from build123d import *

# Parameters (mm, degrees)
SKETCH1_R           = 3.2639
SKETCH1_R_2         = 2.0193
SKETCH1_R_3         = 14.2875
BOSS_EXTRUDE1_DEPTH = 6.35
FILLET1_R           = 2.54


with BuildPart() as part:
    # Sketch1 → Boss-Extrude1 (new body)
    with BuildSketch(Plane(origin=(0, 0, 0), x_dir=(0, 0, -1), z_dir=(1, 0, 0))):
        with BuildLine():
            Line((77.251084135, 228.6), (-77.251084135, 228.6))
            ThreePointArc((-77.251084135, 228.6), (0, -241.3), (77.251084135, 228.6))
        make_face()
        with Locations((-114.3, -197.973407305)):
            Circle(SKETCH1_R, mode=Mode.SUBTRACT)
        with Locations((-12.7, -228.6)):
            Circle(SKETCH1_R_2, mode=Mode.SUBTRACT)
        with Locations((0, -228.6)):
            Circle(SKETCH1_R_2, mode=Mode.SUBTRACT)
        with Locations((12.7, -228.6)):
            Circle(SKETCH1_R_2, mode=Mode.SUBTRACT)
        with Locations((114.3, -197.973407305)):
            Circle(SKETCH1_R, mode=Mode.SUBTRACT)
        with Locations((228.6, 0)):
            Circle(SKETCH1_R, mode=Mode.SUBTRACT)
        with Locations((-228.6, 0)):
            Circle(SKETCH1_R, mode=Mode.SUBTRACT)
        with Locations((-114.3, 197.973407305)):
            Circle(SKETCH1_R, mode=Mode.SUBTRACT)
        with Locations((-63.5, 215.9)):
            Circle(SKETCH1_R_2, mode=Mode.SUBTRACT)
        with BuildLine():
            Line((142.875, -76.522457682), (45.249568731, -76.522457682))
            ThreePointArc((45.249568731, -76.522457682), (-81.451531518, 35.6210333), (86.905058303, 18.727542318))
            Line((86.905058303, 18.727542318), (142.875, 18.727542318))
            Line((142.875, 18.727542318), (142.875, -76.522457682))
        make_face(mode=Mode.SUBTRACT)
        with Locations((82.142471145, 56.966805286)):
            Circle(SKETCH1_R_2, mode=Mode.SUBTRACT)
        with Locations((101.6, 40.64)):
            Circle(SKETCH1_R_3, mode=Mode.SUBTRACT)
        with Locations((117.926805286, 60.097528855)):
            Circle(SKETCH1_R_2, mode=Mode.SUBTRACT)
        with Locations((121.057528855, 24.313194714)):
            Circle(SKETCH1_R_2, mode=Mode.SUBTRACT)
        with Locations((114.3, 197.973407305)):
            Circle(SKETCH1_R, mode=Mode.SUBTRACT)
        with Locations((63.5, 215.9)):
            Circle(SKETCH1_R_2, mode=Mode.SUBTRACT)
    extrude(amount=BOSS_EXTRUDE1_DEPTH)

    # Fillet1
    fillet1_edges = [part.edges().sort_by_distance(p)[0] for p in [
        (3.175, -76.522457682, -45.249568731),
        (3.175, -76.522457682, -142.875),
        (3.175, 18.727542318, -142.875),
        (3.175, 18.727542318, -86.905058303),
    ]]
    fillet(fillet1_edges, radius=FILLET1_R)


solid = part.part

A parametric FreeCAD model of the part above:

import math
import FreeCAD as App
import Part
import Sketcher
Q = App.Units.Quantity


def edges_at(feature, points):
    """Names of the edges that pass closest to the given points."""
    edges = feature.Shape.Edges
    near = lambda p: min(range(len(edges)), key=lambda i: edges[i].distToShape(Part.Vertex(*p))[0])
    return sorted({f"Edge{near(p) + 1}" for p in points})

doc = App.newDocument("Part")
body = doc.addObject("PartDesign::Body", "Body")

# Sketch on YZ plane
sketch1 = body.newObject("Sketcher::SketchObject", "Sketch")
sketch1.AttachmentSupport = (doc.getObject("YZ_Plane"), [""])
sketch1.MapMode = "FlatFace"
sketch1.addGeometry([
    Part.LineSegment(App.Vector(228.6, -77.3, 0), App.Vector(228.6, 77.3, 0)),  # 0
    Part.ArcOfCircle(Part.Circle(App.Vector(0, 0, 0), App.Vector(0, 0, 1), 241.3), math.radians(19), math.radians(341)),  # 1
    Part.Circle(App.Vector(-198, 114.3, 0), App.Vector(0, 0, 1), 3.3),  # 2
    Part.Circle(App.Vector(-228.6, 12.7, 0), App.Vector(0, 0, 1), 2),  # 3
    Part.Circle(App.Vector(-228.6, 0, 0), App.Vector(0, 0, 1), 2),  # 4
    Part.Circle(App.Vector(-228.6, -12.7, 0), App.Vector(0, 0, 1), 2),  # 5
    Part.Circle(App.Vector(-198, -114.3, 0), App.Vector(0, 0, 1), 3.3),  # 6
    Part.Circle(App.Vector(0, 228.6, 0), App.Vector(0, 0, 1), 3.3),  # 7
    Part.Circle(App.Vector(198, 114.3, 0), App.Vector(0, 0, 1), 3.3),  # 8
    Part.Circle(App.Vector(215.9, 63.5, 0), App.Vector(0, 0, 1), 2),  # 9
    Part.LineSegment(App.Vector(18.7, -142.9, 0), App.Vector(-76.5, -142.9, 0)),  # 10
    Part.LineSegment(App.Vector(-76.5, -142.9, 0), App.Vector(-76.5, -45.2, 0)),  # 11
    Part.ArcOfCircle(Part.Circle(App.Vector(0, 0, 0), App.Vector(0, 0, 1), 88.9), math.radians(-78), math.radians(211)),  # 12
    Part.LineSegment(App.Vector(18.7, -86.9, 0), App.Vector(18.7, -142.9, 0)),  # 13
    Part.Circle(App.Vector(40.6, -101.6, 0), App.Vector(0, 0, 1), 14.3),  # 14
    Part.Circle(App.Vector(57, -82.1, 0), App.Vector(0, 0, 1), 2),  # 15
    Part.Circle(App.Vector(24.3, -121.1, 0), App.Vector(0, 0, 1), 2),  # 16
    Part.Circle(App.Vector(0, -228.6, 0), App.Vector(0, 0, 1), 3.3),  # 17
    Part.Circle(App.Vector(60.1, -117.9, 0), App.Vector(0, 0, 1), 2),  # 18
    Part.Circle(App.Vector(215.9, -63.5, 0), App.Vector(0, 0, 1), 2),  # 19
    Part.Circle(App.Vector(198, -114.3, 0), App.Vector(0, 0, 1), 3.3),  # 20
], False)
sketch1.addConstraint([
    Sketcher.Constraint("Coincident", 0, 1, 1, 2),
    Sketcher.Constraint("Coincident", 1, 1, 0, 2),
    Sketcher.Constraint("Coincident", 10, 2, 11, 1),
    Sketcher.Constraint("Coincident", 11, 2, 12, 2),
    Sketcher.Constraint("Coincident", 12, 1, 13, 1),
    Sketcher.Constraint("Coincident", 13, 2, 10, 1),
    Sketcher.Constraint("Vertical", 0),
    Sketcher.Constraint("Horizontal", 10),
    Sketcher.Constraint("Vertical", 11),
    Sketcher.Constraint("Vertical", 13),
    Sketcher.Constraint("Coincident", 1, 3, -1, 1),
    Sketcher.Constraint("Coincident", 12, 3, -1, 1),
    Sketcher.Constraint("Equal", 3, 4),
    Sketcher.Constraint("Equal", 4, 5),
    Sketcher.Constraint("Equal", 2, 6),
    Sketcher.Constraint("Equal", 6, 7),
    Sketcher.Constraint("Equal", 7, 8),
    Sketcher.Constraint("Equal", 5, 9),
    Sketcher.Constraint("Equal", 9, 15),
    Sketcher.Constraint("Equal", 15, 16),
    Sketcher.Constraint("Equal", 8, 17),
    Sketcher.Constraint("Equal", 16, 18),
    Sketcher.Constraint("Equal", 18, 19),
    Sketcher.Constraint("Equal", 17, 20),
    Sketcher.Constraint("Symmetric", 6, 3, 8, 3, -1, 1),
    Sketcher.Constraint("Symmetric", 7, 3, 17, 3, -1, 1),
    Sketcher.Constraint("Symmetric", 2, 3, 20, 3, -1, 1),
    Sketcher.Constraint("Symmetric", 2, 3, 8, 3, -2),
    Sketcher.Constraint("Symmetric", 3, 3, 5, 3, -1),
    Sketcher.Constraint("Symmetric", 9, 3, 19, 3, -1),
    Sketcher.Constraint("PointOnObject", 4, 3, -1),
    Sketcher.Constraint("PointOnObject", 7, 3, -2),
    Sketcher.Constraint("Vertical", 3, 3, 4, 3),
    Sketcher.Constraint("Radius", 1, Q("9.5 in")),
    Sketcher.Constraint("Radius", 12, Q("3.5 in")),
    Sketcher.Constraint("Diameter", 2, Q("0.257 in")),
    Sketcher.Constraint("Diameter", 3, Q("0.159 in")),
    Sketcher.Constraint("Diameter", 14, Q("1.125 in")),
    Sketcher.Constraint("DistanceX", 3, 3, -1, 1, Q("9 in")),
    Sketcher.Constraint("DistanceY", -1, 1, 7, 3, Q("9 in")),
    Sketcher.Constraint("DistanceY", 14, 3, -1, 1, Q("4 in")),
    Sketcher.Constraint("DistanceX", -1, 1, 0, 1, Q("9 in")),
    Sketcher.Constraint("DistanceY", 3, 3, 2, 3, Q("4 in")),
    Sketcher.Constraint("DistanceY", 5, 3, 3, 3, Q("1 in")),
    Sketcher.Constraint("DistanceY", 9, 3, 8, 3, Q("2 in")),
    Sketcher.Constraint("DistanceX", 10, 2, 10, 1, Q("3.75 in")),
    Sketcher.Constraint("DistanceX", -1, 1, 9, 3, Q("8.5 in")),
    Sketcher.Constraint("DistanceX", -1, 1, 14, 3, Q("1.6 in")),
    Sketcher.Constraint("DistanceY", 10, 2, -1, 1, Q("5.625 in")),
    Sketcher.Constraint("DistanceY", 11, 1, 11, 2, 97.625431),
    Sketcher.Constraint("DistanceY", 15, 3, -1, 1, 82.142471),
    Sketcher.Constraint("DistanceY", 16, 3, -1, 1, 121.057529),
    Sketcher.Constraint("DistanceX", -1, 1, 18, 3, 60.097529),
    Sketcher.Constraint("DistanceX", 16, 3, 15, 3, 32.653611),
    Sketcher.Constraint("DistanceX", 18, 3, 20, 3, 137.875878),
    Sketcher.Constraint("DistanceY", 18, 3, 0, 1, 40.675721),
    Sketcher.Constraint("DistanceX", -1, 1, 15, 3, 56.966805),
])
pad1 = body.newObject("PartDesign::Pad", "Pad")
pad1.Profile = sketch1
pad1.Length = Q("0.25 in")
doc.recompute()

fillet = body.newObject("PartDesign::Fillet", "Fillet")
fillet.Base = (pad1, edges_at(pad1, [
    (3.175, -76.522, -45.25),
    (3.175, -76.522, -142.875),
    (3.175, 18.728, -142.875),
    (3.175, 18.728, -86.905),
]))
fillet.Radius = Q("0.1 in")

doc.recompute()
